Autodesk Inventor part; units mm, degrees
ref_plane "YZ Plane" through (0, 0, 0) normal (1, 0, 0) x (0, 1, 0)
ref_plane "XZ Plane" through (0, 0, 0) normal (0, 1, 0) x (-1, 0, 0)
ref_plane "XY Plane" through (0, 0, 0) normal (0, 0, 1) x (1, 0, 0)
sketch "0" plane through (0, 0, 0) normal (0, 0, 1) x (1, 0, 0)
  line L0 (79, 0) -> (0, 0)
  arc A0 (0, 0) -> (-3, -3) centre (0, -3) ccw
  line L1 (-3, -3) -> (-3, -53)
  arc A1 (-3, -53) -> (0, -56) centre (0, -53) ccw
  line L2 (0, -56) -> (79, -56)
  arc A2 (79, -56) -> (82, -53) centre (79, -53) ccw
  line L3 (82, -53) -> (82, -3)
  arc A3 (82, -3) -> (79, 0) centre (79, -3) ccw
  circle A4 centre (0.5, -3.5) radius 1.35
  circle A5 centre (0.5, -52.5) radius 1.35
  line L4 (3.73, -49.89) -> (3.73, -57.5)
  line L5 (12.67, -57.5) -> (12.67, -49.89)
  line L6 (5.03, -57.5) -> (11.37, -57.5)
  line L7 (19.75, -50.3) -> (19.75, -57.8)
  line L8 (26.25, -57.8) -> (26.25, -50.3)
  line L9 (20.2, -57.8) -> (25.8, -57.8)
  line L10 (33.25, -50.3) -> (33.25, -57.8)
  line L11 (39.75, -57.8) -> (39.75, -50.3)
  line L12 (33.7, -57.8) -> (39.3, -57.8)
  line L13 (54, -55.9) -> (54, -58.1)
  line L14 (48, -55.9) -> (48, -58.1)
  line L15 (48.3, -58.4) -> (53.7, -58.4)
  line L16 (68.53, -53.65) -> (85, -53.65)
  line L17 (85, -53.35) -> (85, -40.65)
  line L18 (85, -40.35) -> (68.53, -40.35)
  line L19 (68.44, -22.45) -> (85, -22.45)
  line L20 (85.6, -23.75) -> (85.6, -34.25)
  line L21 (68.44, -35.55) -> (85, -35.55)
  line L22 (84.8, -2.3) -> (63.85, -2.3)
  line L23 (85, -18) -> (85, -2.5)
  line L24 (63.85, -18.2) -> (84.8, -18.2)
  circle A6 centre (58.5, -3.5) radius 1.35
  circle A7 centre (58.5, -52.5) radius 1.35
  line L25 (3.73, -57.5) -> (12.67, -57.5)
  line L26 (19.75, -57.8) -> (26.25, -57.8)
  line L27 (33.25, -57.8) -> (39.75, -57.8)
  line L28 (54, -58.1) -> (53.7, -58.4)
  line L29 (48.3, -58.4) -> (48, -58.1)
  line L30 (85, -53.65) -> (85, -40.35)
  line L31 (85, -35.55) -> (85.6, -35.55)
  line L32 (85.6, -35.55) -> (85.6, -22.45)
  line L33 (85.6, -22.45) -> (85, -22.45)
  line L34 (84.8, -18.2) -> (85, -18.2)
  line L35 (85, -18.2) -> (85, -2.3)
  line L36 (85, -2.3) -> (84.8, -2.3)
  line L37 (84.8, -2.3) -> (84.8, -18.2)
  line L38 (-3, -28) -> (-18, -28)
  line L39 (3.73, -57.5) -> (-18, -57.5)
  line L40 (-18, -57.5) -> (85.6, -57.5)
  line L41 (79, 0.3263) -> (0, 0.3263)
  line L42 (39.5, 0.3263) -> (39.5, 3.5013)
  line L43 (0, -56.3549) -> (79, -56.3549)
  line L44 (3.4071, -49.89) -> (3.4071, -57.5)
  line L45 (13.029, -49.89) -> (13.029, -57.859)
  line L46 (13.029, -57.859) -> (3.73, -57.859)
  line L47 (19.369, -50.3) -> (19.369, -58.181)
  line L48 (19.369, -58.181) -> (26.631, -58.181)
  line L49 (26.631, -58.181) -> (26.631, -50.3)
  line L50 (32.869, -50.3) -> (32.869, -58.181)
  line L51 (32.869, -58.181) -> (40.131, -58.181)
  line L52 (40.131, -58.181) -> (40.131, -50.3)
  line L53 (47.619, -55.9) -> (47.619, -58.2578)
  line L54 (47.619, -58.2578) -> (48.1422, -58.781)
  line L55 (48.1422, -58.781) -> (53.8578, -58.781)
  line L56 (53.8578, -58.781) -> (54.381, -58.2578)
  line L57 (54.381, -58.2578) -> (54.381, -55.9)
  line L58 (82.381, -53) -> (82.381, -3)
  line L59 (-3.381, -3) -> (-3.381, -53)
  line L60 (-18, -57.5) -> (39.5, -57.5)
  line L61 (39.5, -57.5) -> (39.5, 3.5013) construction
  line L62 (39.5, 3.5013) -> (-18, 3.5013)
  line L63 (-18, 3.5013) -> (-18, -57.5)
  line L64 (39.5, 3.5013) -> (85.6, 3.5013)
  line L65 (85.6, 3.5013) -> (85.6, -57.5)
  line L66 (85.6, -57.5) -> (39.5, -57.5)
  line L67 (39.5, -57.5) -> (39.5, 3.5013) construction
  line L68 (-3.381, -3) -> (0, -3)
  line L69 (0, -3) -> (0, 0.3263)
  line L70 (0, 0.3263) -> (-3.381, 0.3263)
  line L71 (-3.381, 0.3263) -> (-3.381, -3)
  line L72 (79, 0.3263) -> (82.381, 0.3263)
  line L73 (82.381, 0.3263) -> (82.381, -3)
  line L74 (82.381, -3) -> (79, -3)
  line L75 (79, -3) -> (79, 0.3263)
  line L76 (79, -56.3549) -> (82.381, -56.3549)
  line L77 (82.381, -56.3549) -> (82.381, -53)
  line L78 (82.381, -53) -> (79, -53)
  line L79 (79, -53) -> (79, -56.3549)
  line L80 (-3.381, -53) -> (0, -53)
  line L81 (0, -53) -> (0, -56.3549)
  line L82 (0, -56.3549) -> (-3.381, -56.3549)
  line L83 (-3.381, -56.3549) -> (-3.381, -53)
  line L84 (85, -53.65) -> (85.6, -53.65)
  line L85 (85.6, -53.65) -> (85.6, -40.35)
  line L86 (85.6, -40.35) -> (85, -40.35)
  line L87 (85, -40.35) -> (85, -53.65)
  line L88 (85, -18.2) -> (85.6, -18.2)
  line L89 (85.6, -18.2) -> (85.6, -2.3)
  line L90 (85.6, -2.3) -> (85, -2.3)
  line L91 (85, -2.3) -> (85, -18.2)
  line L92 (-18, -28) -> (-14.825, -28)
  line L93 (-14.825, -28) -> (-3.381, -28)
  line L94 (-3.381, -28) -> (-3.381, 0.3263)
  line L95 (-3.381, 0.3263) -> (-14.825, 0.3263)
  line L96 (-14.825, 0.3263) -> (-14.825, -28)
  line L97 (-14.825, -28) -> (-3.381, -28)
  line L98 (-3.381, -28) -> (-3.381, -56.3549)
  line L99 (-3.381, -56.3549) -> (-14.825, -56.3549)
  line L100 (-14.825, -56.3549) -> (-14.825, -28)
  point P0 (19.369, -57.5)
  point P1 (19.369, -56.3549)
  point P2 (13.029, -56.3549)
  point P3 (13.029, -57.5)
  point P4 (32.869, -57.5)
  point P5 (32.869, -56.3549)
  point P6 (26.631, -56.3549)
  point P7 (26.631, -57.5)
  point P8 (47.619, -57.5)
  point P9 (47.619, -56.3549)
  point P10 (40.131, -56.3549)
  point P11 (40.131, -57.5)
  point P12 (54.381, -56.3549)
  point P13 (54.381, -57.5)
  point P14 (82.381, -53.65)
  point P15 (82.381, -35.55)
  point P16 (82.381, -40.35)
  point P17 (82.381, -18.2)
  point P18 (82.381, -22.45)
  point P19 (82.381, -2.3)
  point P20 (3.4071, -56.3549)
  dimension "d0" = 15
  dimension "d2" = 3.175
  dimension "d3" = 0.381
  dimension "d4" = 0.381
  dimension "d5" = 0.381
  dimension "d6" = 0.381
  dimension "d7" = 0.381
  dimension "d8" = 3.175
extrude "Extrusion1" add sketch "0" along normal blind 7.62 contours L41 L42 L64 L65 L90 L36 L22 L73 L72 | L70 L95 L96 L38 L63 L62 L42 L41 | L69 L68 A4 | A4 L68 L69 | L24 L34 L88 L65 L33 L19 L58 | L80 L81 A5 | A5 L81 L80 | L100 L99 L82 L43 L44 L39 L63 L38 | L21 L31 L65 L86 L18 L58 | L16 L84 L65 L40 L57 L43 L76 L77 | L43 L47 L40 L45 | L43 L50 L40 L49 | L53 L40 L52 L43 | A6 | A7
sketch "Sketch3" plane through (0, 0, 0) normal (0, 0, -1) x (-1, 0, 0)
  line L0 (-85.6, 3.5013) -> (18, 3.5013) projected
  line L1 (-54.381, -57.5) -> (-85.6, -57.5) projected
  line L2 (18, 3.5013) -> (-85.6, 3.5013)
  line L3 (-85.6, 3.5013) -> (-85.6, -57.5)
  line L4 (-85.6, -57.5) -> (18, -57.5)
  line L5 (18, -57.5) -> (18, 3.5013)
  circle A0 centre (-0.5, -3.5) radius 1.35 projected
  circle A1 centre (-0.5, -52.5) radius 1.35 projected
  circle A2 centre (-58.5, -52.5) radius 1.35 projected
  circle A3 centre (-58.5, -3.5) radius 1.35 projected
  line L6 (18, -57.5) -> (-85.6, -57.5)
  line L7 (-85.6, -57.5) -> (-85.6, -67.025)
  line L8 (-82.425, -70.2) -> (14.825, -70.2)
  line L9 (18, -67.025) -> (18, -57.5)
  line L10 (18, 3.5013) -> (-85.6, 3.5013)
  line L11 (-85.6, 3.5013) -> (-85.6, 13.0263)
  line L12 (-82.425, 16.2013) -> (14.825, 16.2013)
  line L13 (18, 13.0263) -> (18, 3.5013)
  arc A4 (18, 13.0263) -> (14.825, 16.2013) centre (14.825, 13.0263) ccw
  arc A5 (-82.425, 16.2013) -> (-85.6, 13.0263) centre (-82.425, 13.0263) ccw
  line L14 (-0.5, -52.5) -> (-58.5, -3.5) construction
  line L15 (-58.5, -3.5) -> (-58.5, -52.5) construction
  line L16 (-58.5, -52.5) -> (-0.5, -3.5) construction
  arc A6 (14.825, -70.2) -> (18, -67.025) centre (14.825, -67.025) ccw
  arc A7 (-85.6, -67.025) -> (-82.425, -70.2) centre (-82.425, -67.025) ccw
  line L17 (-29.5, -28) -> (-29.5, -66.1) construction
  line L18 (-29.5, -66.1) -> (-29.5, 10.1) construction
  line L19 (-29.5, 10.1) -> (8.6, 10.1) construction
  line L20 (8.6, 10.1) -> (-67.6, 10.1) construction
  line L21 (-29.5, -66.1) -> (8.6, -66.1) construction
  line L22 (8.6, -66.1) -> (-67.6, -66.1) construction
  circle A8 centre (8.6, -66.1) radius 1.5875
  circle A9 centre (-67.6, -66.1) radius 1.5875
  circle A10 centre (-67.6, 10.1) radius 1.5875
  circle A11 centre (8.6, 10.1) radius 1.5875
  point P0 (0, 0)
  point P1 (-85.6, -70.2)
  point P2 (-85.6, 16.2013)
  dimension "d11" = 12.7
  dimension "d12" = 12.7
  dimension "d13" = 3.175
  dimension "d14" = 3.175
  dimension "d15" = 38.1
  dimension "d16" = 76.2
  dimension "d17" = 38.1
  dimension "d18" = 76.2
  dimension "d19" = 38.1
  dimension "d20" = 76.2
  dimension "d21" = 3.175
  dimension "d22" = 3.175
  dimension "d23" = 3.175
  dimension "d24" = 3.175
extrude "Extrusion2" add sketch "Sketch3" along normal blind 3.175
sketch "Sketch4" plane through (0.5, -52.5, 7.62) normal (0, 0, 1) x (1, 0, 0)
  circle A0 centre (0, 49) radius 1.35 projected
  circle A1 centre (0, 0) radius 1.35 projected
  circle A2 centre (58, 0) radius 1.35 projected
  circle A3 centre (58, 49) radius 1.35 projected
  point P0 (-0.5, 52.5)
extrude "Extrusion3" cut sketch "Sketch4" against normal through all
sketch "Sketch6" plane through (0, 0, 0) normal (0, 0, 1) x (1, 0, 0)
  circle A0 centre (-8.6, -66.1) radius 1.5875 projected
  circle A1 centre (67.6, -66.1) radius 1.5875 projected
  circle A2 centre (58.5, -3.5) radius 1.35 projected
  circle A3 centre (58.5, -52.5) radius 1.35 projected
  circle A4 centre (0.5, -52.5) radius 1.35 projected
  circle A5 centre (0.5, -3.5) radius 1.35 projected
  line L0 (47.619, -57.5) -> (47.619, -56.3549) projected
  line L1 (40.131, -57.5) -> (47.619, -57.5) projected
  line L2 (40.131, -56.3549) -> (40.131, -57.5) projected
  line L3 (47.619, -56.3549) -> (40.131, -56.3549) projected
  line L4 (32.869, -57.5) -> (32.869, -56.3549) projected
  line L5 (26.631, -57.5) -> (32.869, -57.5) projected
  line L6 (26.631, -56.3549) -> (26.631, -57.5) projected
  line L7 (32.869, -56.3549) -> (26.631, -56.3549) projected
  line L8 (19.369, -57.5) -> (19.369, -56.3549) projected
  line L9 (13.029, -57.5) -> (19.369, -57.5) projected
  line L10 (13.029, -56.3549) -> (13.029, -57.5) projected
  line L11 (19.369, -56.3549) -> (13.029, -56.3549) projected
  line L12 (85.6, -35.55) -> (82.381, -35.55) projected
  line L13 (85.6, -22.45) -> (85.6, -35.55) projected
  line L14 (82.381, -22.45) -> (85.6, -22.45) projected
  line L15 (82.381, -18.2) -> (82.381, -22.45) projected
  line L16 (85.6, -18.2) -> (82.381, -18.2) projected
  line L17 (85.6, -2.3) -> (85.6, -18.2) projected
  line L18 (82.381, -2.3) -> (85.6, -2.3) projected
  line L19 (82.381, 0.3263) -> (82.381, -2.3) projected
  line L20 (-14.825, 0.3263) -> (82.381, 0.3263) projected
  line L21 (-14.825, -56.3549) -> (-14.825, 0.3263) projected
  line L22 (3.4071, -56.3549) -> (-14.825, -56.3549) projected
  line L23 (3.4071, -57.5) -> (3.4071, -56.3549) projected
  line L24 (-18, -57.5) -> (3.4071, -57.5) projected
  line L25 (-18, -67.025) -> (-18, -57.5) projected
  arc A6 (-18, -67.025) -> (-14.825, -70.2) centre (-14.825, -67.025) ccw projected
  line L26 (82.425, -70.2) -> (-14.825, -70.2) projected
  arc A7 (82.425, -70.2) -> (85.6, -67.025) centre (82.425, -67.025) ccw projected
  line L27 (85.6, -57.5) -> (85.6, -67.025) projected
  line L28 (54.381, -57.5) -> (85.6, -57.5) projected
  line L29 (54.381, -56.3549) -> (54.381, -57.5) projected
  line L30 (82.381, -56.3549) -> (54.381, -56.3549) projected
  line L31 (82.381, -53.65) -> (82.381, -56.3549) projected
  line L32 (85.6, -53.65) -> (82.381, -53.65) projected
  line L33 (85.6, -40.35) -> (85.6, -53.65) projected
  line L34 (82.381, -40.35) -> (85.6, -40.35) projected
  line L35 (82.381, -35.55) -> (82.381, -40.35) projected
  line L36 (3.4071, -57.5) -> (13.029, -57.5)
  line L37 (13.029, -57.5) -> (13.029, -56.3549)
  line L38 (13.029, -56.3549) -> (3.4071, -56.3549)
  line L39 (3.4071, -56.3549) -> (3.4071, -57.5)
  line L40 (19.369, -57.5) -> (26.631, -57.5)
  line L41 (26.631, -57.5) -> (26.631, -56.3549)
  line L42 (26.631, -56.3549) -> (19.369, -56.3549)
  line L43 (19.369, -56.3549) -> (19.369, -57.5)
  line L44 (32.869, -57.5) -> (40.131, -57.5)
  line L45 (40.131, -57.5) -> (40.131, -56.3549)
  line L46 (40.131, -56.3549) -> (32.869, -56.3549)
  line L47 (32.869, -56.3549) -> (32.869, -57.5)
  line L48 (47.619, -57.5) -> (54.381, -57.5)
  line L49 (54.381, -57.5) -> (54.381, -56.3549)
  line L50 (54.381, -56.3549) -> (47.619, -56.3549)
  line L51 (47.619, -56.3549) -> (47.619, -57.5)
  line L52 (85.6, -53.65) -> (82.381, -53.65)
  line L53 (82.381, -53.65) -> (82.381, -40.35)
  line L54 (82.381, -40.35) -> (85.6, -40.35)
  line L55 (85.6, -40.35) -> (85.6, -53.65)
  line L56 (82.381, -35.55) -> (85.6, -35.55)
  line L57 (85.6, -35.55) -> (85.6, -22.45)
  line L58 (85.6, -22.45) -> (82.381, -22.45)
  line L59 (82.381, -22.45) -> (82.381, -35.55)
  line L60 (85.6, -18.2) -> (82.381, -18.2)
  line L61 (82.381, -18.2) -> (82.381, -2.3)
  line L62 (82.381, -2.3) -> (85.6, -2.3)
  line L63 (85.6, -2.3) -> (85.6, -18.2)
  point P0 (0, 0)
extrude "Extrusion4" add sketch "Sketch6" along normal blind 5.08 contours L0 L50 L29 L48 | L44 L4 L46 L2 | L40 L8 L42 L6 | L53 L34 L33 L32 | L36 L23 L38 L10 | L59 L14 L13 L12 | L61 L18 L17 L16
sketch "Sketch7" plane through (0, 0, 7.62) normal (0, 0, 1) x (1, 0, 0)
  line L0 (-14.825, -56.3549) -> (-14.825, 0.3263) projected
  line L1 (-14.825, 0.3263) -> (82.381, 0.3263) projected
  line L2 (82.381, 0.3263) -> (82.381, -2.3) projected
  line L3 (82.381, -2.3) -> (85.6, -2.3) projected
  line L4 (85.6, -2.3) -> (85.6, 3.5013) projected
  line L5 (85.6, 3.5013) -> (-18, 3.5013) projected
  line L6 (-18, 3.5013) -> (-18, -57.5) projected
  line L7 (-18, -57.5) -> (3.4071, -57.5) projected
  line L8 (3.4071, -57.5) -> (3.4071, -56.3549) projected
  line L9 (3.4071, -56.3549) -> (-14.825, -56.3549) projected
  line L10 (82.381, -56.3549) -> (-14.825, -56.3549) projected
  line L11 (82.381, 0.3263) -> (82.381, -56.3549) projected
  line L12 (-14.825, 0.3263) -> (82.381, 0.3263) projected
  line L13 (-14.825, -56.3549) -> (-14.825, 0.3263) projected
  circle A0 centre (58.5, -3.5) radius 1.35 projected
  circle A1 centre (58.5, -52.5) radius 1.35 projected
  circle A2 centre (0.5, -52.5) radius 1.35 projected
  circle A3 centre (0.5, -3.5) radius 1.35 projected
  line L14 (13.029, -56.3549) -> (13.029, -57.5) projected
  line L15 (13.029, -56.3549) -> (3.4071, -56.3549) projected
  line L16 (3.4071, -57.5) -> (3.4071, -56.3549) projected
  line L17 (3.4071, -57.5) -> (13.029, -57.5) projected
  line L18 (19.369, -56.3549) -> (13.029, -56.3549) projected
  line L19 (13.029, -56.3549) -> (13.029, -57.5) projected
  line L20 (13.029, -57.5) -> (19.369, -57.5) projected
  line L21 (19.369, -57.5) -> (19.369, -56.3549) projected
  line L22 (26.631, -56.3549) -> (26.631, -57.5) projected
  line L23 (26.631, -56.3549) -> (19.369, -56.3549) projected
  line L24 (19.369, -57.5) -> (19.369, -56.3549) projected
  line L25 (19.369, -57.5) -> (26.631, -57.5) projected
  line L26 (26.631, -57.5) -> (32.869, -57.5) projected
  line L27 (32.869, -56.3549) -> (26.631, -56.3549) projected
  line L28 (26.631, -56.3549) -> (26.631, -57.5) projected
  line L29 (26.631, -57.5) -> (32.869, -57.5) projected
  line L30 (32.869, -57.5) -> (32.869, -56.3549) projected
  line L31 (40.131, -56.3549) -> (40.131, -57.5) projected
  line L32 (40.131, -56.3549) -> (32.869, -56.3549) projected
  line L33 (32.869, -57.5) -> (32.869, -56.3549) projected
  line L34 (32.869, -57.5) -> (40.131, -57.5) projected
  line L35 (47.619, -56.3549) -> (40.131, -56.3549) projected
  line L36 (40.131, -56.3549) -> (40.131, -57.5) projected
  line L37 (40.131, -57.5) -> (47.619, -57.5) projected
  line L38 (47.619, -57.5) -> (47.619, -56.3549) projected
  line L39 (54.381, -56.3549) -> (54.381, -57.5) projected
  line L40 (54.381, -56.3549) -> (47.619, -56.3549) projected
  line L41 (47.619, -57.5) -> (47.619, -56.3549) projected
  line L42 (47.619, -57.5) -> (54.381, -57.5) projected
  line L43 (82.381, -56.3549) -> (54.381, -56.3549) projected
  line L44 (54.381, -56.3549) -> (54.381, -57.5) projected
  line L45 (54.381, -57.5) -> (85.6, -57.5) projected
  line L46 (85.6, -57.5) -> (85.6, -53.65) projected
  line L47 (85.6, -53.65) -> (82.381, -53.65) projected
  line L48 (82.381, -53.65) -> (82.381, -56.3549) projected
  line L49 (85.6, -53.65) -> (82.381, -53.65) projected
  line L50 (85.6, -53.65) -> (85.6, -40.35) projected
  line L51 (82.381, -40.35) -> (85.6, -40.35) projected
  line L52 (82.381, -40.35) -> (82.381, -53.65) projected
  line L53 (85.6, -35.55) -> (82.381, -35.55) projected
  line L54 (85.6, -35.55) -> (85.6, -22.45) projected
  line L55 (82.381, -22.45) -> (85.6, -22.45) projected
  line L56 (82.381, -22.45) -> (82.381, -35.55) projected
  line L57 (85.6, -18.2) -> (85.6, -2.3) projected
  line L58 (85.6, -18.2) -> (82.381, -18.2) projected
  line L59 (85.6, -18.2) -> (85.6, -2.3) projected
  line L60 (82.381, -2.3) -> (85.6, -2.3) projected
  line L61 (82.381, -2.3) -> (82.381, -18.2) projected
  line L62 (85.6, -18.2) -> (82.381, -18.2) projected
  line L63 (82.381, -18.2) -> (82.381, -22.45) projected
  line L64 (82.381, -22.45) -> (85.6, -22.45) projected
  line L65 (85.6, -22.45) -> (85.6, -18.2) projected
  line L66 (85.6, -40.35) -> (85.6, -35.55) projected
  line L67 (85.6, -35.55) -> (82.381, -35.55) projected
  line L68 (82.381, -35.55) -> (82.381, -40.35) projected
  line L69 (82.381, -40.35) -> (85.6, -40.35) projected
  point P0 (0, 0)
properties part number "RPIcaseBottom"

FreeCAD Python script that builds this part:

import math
import FreeCAD as App
import Part
import Sketcher


def add_polygon(sketch, points):
    """Adds a closed chain of lines whose ends are joined by coincident constraints."""
    first, n = sketch.GeometryCount, len(points)
    for a, b in zip(points, points[1:] + points[:1]):
        sketch.addGeometry(Part.LineSegment(App.Vector(*a, 0), App.Vector(*b, 0)), False)
    for i in range(n):
        sketch.addConstraint(Sketcher.Constraint("Coincident", first + i, 2, first + (i + 1) % n, 1))

doc = App.newDocument("Part")
params = doc.addObject("Spreadsheet::Sheet", "Params")
for row, (alias, value) in enumerate([
    ("sketch1_diameter", "2.7 mm"),
    ("sketch1_width", "28 mm"),
    ("sketch1_width2", "103.6 mm"),
    ("sketch1_height", "4.8 mm"),
    ("sketch1_width3", "6.34 mm"),
    ("pad1_length", "7.62 mm"),
    ("sketch2_diameter", "2.7 mm"),
    ("sketch2_width", "97.25 mm"),
    ("pad2_length", "3.175 mm"),
    ("sketch3_diameter", "2.7 mm"),
    ("sketch4_height", "13.3 mm"),
    ("sketch4_height2", "13.1 mm"),
    ("sketch4_height3", "15.9 mm"),
    ("pad3_length", "5.08 mm"),
], start=1):
    params.set(f"A{row}", alias)
    params.set(f"B{row}", "=" + value)
    params.setAlias(f"B{row}", alias)

body = doc.addObject("PartDesign::Body", "Body")
body.AllowCompound = True

# Sketch on XY plane
sketch1 = body.newObject("Sketcher::SketchObject", "Sketch")
sketch1.AttachmentSupport = (doc.getObject("XY_Plane"), [""])
sketch1.MapMode = "FlatFace"
add_polygon(sketch1, [(82.4, 0.3), (82.4, -2.3), (85.6, -2.3), (85.6, 3.5), (-18, 3.5), (-18, -57.5), (3.4, -57.5), (3.4, -56.4), (-14.8, -56.4), (-14.8, 0.3)])  # lines 0-9
sketch1.addGeometry(Part.Circle(App.Vector(0.5, -3.5, 0), App.Vector(0, 0, 1), 1.4), False)  # 10
add_polygon(sketch1, [(85.6, -18.2), (82.4, -18.2), (82.4, -22.4), (85.6, -22.4)])  # lines 11-14
sketch1.addGeometry(Part.Circle(App.Vector(0.5, -52.5, 0), App.Vector(0, 0, 1), 1.4), False)  # 15
add_polygon(sketch1, [(85.6, -35.5), (82.4, -35.5), (82.4, -40.4), (85.6, -40.4)])  # lines 16-19
add_polygon(sketch1, [(85.6, -53.6), (82.4, -53.6), (82.4, -56.4), (54.4, -56.4), (54.4, -57.5), (85.6, -57.5)])  # lines 20-25
add_polygon(sketch1, [(19.4, -56.4), (13, -56.4), (13, -57.5), (19.4, -57.5)])  # lines 26-29
add_polygon(sketch1, [(32.9, -56.4), (26.6, -56.4), (26.6, -57.5), (32.9, -57.5)])  # lines 30-33
add_polygon(sketch1, [(47.6, -57.5), (47.6, -56.4), (40.1, -56.4), (40.1, -57.5)])  # lines 34-37
sketch1.addGeometry(Part.Circle(App.Vector(58.5, -3.5, 0), App.Vector(0, 0, 1), 1.4), False)  # 38
sketch1.addGeometry(Part.Circle(App.Vector(58.5, -52.5, 0), App.Vector(0, 0, 1), 1.4), False)  # 39
sketch1.addConstraint(Sketcher.Constraint("Vertical", 0))
sketch1.addConstraint(Sketcher.Constraint("Horizontal", 1))
sketch1.addConstraint(Sketcher.Constraint("Vertical", 2))
sketch1.addConstraint(Sketcher.Constraint("Horizontal", 3))
sketch1.addConstraint(Sketcher.Constraint("Vertical", 4))
sketch1.addConstraint(Sketcher.Constraint("Horizontal", 5))
sketch1.addConstraint(Sketcher.Constraint("Vertical", 6))
sketch1.addConstraint(Sketcher.Constraint("Horizontal", 7))
sketch1.addConstraint(Sketcher.Constraint("Vertical", 8))
sketch1.addConstraint(Sketcher.Constraint("Horizontal", 9))
sketch1.addConstraint(Sketcher.Constraint("Horizontal", 11))
sketch1.addConstraint(Sketcher.Constraint("Vertical", 12))
sketch1.addConstraint(Sketcher.Constraint("Horizontal", 13))
sketch1.addConstraint(Sketcher.Constraint("Vertical", 14))
sketch1.addConstraint(Sketcher.Constraint("Horizontal", 16))
sketch1.addConstraint(Sketcher.Constraint("Vertical", 17))
sketch1.addConstraint(Sketcher.Constraint("Horizontal", 18))
sketch1.addConstraint(Sketcher.Constraint("Vertical", 19))
sketch1.addConstraint(Sketcher.Constraint("Horizontal", 20))
sketch1.addConstraint(Sketcher.Constraint("Vertical", 21))
sketch1.addConstraint(Sketcher.Constraint("Horizontal", 22))
sketch1.addConstraint(Sketcher.Constraint("Vertical", 23))
sketch1.addConstraint(Sketcher.Constraint("Horizontal", 24))
sketch1.addConstraint(Sketcher.Constraint("Vertical", 25))
sketch1.addConstraint(Sketcher.Constraint("Horizontal", 26))
sketch1.addConstraint(Sketcher.Constraint("Vertical", 27))
sketch1.addConstraint(Sketcher.Constraint("Horizontal", 28))
sketch1.addConstraint(Sketcher.Constraint("Vertical", 29))
sketch1.addConstraint(Sketcher.Constraint("Horizontal", 30))
sketch1.addConstraint(Sketcher.Constraint("Vertical", 31))
sketch1.addConstraint(Sketcher.Constraint("Horizontal", 32))
sketch1.addConstraint(Sketcher.Constraint("Vertical", 33))
sketch1.addConstraint(Sketcher.Constraint("Vertical", 34))
sketch1.addConstraint(Sketcher.Constraint("Horizontal", 35))
sketch1.addConstraint(Sketcher.Constraint("Vertical", 36))
sketch1.addConstraint(Sketcher.Constraint("Horizontal", 37))
sketch1.addConstraint(Sketcher.Constraint("Equal", 10, 15))
sketch1.addConstraint(Sketcher.Constraint("Equal", 15, 38))
sketch1.addConstraint(Sketcher.Constraint("Equal", 38, 39))
sketch1.addConstraint(Sketcher.Constraint("Horizontal", 10, 3, 38, 3))
sketch1.addConstraint(Sketcher.Constraint("Horizontal", 15, 3, 39, 3))
sketch1.addConstraint(Sketcher.Constraint("Horizontal", 7, 2, 21, 2))
sketch1.addConstraint(Sketcher.Constraint("Horizontal", 5, 2, 23, 2))
sketch1.addConstraint(Sketcher.Constraint("Horizontal", 22, 2, 26, 2))
sketch1.addConstraint(Sketcher.Constraint("Horizontal", 24, 2, 27, 2))
sketch1.addConstraint(Sketcher.Constraint("Horizontal", 29, 2, 30, 2))
sketch1.addConstraint(Sketcher.Constraint("Horizontal", 28, 2, 31, 2))
sketch1.addConstraint(Sketcher.Constraint("Horizontal", 33, 2, 34, 2))
sketch1.addConstraint(Sketcher.Constraint("Horizontal", 32, 2, 36, 2))
sketch1.addConstraint(Sketcher.Constraint("Vertical", 10, 3, 15, 3))
sketch1.addConstraint(Sketcher.Constraint("Vertical", 38, 3, 39, 3))
sketch1.addConstraint(Sketcher.Constraint("Vertical", 9, 2, 11, 2))
sketch1.addConstraint(Sketcher.Constraint("Vertical", 2, 2, 13, 2))
sketch1.addConstraint(Sketcher.Constraint("Vertical", 12, 2, 16, 2))
sketch1.addConstraint(Sketcher.Constraint("Vertical", 14, 2, 18, 2))
sketch1.addConstraint(Sketcher.Constraint("Vertical", 17, 2, 20, 2))
sketch1.addConstraint(Sketcher.Constraint("Vertical", 19, 2, 24, 2))
sketch1.addConstraint(Sketcher.Constraint("Diameter", 10, 2.7))
sketch1.addConstraint(Sketcher.Constraint("DistanceX", 22, 2, 22, 1, 28.0))
sketch1.addConstraint(Sketcher.Constraint("DistanceX", 3, 2, 3, 1, 103.6))
sketch1.addConstraint(Sketcher.Constraint("DistanceY", 17, 2, 17, 1, 4.8))
sketch1.addConstraint(Sketcher.Constraint("DistanceX", 3, 2, -1, 1, 18.0))
sketch1.addConstraint(Sketcher.Constraint("DistanceY", 15, 3, 10, 3, 49.0))
sketch1.addConstraint(Sketcher.Constraint("DistanceX", 10, 3, 38, 3, 58.0))
sketch1.addConstraint(Sketcher.Constraint("DistanceY", 4, 2, 15, 3, 5.0))
sketch1.addConstraint(Sketcher.Constraint("DistanceX", 4, 2, 7, 2, 3.175))
sketch1.addConstraint(Sketcher.Constraint("DistanceY", 8, 2, 3, 2, 3.175))
sketch1.addConstraint(Sketcher.Constraint("DistanceX", 26, 2, 26, 1, 6.34))
sketch1.addConstraint(Sketcher.Constraint("DistanceY", 12, 2, 12, 1, 4.25))
sketch1.addConstraint(Sketcher.Constraint("DistanceY", 25, 1, 25, 2, 3.85))
sketch1.addConstraint(Sketcher.Constraint("DistanceX", -1, 1, 10, 3, 0.5))
sketch1.addConstraint(Sketcher.Constraint("DistanceY", 10, 3, -1, 1, 3.5))
sketch1.addConstraint(Sketcher.Constraint("DistanceY", 0, 2, -1, 1, 2.3))
sketch1.addConstraint(Sketcher.Constraint("DistanceY", 11, 2, -1, 1, 18.2))
sketch1.addConstraint(Sketcher.Constraint("DistanceY", 16, 2, 12, 2, 13.1))
sketch1.addConstraint(Sketcher.Constraint("DistanceX", 28, 2, 32, 2, 13.5))
sketch1.addConstraint(Sketcher.Constraint("DistanceX", 30, 2, 35, 2, 13.5))
sketch1.addConstraint(Sketcher.Constraint("DistanceX", 1, 1, 1, 2, 3.219))
sketch1.addConstraint(Sketcher.Constraint("DistanceX", 5, 1, 5, 2, 21.407))
sketch1.addConstraint(Sketcher.Constraint("DistanceX", 30, 2, 30, 1, 6.238))
sketch1.addConstraint(Sketcher.Constraint("DistanceX", 35, 2, 35, 1, 7.488))
sketch1.addConstraint(Sketcher.Constraint("DistanceY", 6, 1, 6, 2, 1.145))
sketch1.addConstraint(Sketcher.Constraint("DistanceY", 0, 2, 0, 1, 2.6263))
sketch1.addConstraint(Sketcher.Constraint("DistanceX", -1, 1, 26, 2, 13.029))
sketch1.setExpression("Constraints[93]", "Params.sketch1_diameter")
sketch1.setExpression("Constraints[94]", "Params.sketch1_width")
sketch1.setExpression("Constraints[95]", "Params.sketch1_width2")
sketch1.setExpression("Constraints[96]", "Params.sketch1_height")
sketch1.setExpression("Constraints[103]", "Params.sketch1_width3")
pad1 = body.newObject("PartDesign::Pad", "Pad")
pad1.Profile = sketch1
pad1.setExpression("Length", "Params.pad1_length")

# Sketch on XY plane
sketch2 = body.newObject("Sketcher::SketchObject", "Sketch001")
sketch2.AttachmentSupport = (doc.getObject("XY_Plane"), [""])
sketch2.MapMode = "FlatFace"
sketch2.addGeometry(Part.LineSegment(App.Vector(85.6, 13, 0), App.Vector(85.6, -67, 0)), False)
sketch2.addGeometry(Part.ArcOfCircle(Part.Circle(App.Vector(82.4, -67, 0), App.Vector(0, 0, 1), 3.2), math.radians(-90), math.radians(0)), False)
sketch2.addGeometry(Part.LineSegment(App.Vector(82.4, -70.2, 0), App.Vector(-14.8, -70.2, 0)), False)
sketch2.addGeometry(Part.ArcOfCircle(Part.Circle(App.Vector(-14.8, -67, 0), App.Vector(0, 0, 1), 3.2), math.radians(180), math.radians(270)), False)
sketch2.addGeometry(Part.LineSegment(App.Vector(-18, -67, 0), App.Vector(-18, 13, 0)), False)
sketch2.addGeometry(Part.ArcOfCircle(Part.Circle(App.Vector(-14.8, 13, 0), App.Vector(0, 0, 1), 3.2), math.radians(90), math.radians(180)), False)
sketch2.addGeometry(Part.LineSegment(App.Vector(-14.8, 16.2, 0), App.Vector(82.4, 16.2, 0)), False)
sketch2.addGeometry(Part.ArcOfCircle(Part.Circle(App.Vector(82.4, 13, 0), App.Vector(0, 0, 1), 3.2), math.radians(0), math.radians(90)), False)
sketch2.addGeometry(Part.Circle(App.Vector(67.6, 10.1, 0), App.Vector(0, 0, 1), 1.6), False)
sketch2.addGeometry(Part.Circle(App.Vector(-8.6, 10.1, 0), App.Vector(0, 0, 1), 1.6), False)
sketch2.addGeometry(Part.Circle(App.Vector(0.5, -3.5, 0), App.Vector(0, 0, 1), 1.4), False)
sketch2.addGeometry(Part.Circle(App.Vector(58.5, -52.5, 0), App.Vector(0, 0, 1), 1.4), False)
sketch2.addGeometry(Part.Circle(App.Vector(0.5, -52.5, 0), App.Vector(0, 0, 1), 1.4), False)
sketch2.addGeometry(Part.Circle(App.Vector(58.5, -3.5, 0), App.Vector(0, 0, 1), 1.4), False)
sketch2.addGeometry(Part.Circle(App.Vector(67.6, -66.1, 0), App.Vector(0, 0, 1), 1.6), False)
sketch2.addGeometry(Part.Circle(App.Vector(-8.6, -66.1, 0), App.Vector(0, 0, 1), 1.6), False)
sketch2.addConstraint(Sketcher.Constraint("Tangent", 0, 2, 1, 2))
sketch2.addConstraint(Sketcher.Constraint("Tangent", 1, 1, 2, 1))
sketch2.addConstraint(Sketcher.Constraint("Tangent", 2, 2, 3, 2))
sketch2.addConstraint(Sketcher.Constraint("Tangent", 3, 1, 4, 1))
sketch2.addConstraint(Sketcher.Constraint("Tangent", 4, 2, 5, 2))
sketch2.addConstraint(Sketcher.Constraint("Tangent", 5, 1, 6, 1))
sketch2.addConstraint(Sketcher.Constraint("Tangent", 6, 2, 7, 2))
sketch2.addConstraint(Sketcher.Constraint("Tangent", 7, 1, 0, 1))
sketch2.addConstraint(Sketcher.Constraint("Vertical", 0))
sketch2.addConstraint(Sketcher.Constraint("Horizontal", 2))
sketch2.addConstraint(Sketcher.Constraint("Vertical", 4))
sketch2.addConstraint(Sketcher.Constraint("Horizontal", 6))
sketch2.addConstraint(Sketcher.Constraint("Equal", 1, 3))
sketch2.addConstraint(Sketcher.Constraint("Equal", 3, 5))
sketch2.addConstraint(Sketcher.Constraint("Equal", 5, 7))
sketch2.addConstraint(Sketcher.Constraint("Equal", 8, 9))
sketch2.addConstraint(Sketcher.Constraint("Equal", 10, 11))
sketch2.addConstraint(Sketcher.Constraint("Equal", 11, 12))
sketch2.addConstraint(Sketcher.Constraint("Equal", 12, 13))
sketch2.addConstraint(Sketcher.Constraint("Equal", 9, 14))
sketch2.addConstraint(Sketcher.Constraint("Equal", 14, 15))
sketch2.addConstraint(Sketcher.Constraint("Horizontal", 8, 3, 9, 3))
sketch2.addConstraint(Sketcher.Constraint("Horizontal", 11, 3, 12, 3))
sketch2.addConstraint(Sketcher.Constraint("Horizontal", 10, 3, 13, 3))
sketch2.addConstraint(Sketcher.Constraint("Horizontal", 14, 3, 15, 3))
sketch2.addConstraint(Sketcher.Constraint("Vertical", 10, 3, 12, 3))
sketch2.addConstraint(Sketcher.Constraint("Vertical", 11, 3, 13, 3))
sketch2.addConstraint(Sketcher.Constraint("Vertical", 8, 3, 14, 3))
sketch2.addConstraint(Sketcher.Constraint("Vertical", 9, 3, 15, 3))
sketch2.addConstraint(Sketcher.Constraint("Diameter", 8, 3.175))
sketch2.addConstraint(Sketcher.Constraint("Radius", 1, 3.175))
sketch2.addConstraint(Sketcher.Constraint("Diameter", 10, 2.7))
sketch2.addConstraint(Sketcher.Constraint("DistanceX", 9, 3, 8, 3, 76.2))
sketch2.addConstraint(Sketcher.Constraint("DistanceY", 14, 3, 8, 3, 76.2))
sketch2.addConstraint(Sketcher.Constraint("DistanceX", 3, 1, -1, 1, 18.0))
sketch2.addConstraint(Sketcher.Constraint("DistanceX", 10, 3, 11, 3, 58.0))
sketch2.addConstraint(Sketcher.Constraint("DistanceY", 11, 3, 10, 3, 49.0))
sketch2.addConstraint(Sketcher.Constraint("DistanceX", 14, 3, 0, 2, 18.0))
sketch2.addConstraint(Sketcher.Constraint("DistanceX", 2, 2, 2, 1, 97.25))
sketch2.addConstraint(Sketcher.Constraint("DistanceY", -1, 1, 8, 3, 10.1))
sketch2.addConstraint(Sketcher.Constraint("DistanceX", -1, 1, 10, 3, 0.5))
sketch2.addConstraint(Sketcher.Constraint("DistanceY", 10, 3, -1, 1, 3.5))
sketch2.addConstraint(Sketcher.Constraint("DistanceY", 1, 1, -1, 1, 70.2))
sketch2.addConstraint(Sketcher.Constraint("DistanceY", 0, 2, 0, 1, 80.0513))
sketch2.setExpression("Constraints[31]", "Params.sketch2_diameter")
sketch2.setExpression("Constraints[38]", "Params.sketch2_width")
pad2 = body.newObject("PartDesign::Pad", "Pad001")
pad2.Profile = sketch2
pad2.setExpression("Length", "Params.pad2_length")
pad2.Reversed = True

# Sketch on XY plane
sketch3 = body.newObject("Sketcher::SketchObject", "Sketch002")
sketch3.AttachmentSupport = (doc.getObject("XY_Plane"), [""])
sketch3.MapMode = "FlatFace"
sketch3.AttachmentOffset = App.Placement(App.Vector(0, 0, 7.62), App.Rotation())
sketch3.addGeometry(Part.Circle(App.Vector(0.5, -3.5, 0), App.Vector(0, 0, 1), 1.4), False)
sketch3.addGeometry(Part.Circle(App.Vector(0.5, -52.5, 0), App.Vector(0, 0, 1), 1.4), False)
sketch3.addGeometry(Part.Circle(App.Vector(58.5, -52.5, 0), App.Vector(0, 0, 1), 1.4), False)
sketch3.addGeometry(Part.Circle(App.Vector(58.5, -3.5, 0), App.Vector(0, 0, 1), 1.4), False)
sketch3.addConstraint(Sketcher.Constraint("Equal", 0, 1))
sketch3.addConstraint(Sketcher.Constraint("Equal", 1, 2))
sketch3.addConstraint(Sketcher.Constraint("Equal", 2, 3))
sketch3.addConstraint(Sketcher.Constraint("Horizontal", 1, 3, 2, 3))
sketch3.addConstraint(Sketcher.Constraint("Horizontal", 0, 3, 3, 3))
sketch3.addConstraint(Sketcher.Constraint("Vertical", 0, 3, 1, 3))
sketch3.addConstraint(Sketcher.Constraint("Vertical", 2, 3, 3, 3))
sketch3.addConstraint(Sketcher.Constraint("Diameter", 0, 2.7))
sketch3.addConstraint(Sketcher.Constraint("DistanceY", 1, 3, 0, 3, 49.0))
sketch3.addConstraint(Sketcher.Constraint("DistanceX", 1, 3, 2, 3, 58.0))
sketch3.addConstraint(Sketcher.Constraint("DistanceX", -1, 1, 0, 3, 0.5))
sketch3.addConstraint(Sketcher.Constraint("DistanceY", 0, 3, -1, 1, 3.5))
sketch3.setExpression("Constraints[7]", "Params.sketch3_diameter")
pocket1 = body.newObject("PartDesign::Pocket", "Pocket")
pocket1.Profile = sketch3
pocket1.Type = "ThroughAll"

# Sketch on XY plane
sketch4 = body.newObject("Sketcher::SketchObject", "Sketch003")
sketch4.AttachmentSupport = (doc.getObject("XY_Plane"), [""])
sketch4.MapMode = "FlatFace"
add_polygon(sketch4, [(47.6, -56.4), (47.6, -57.5), (54.4, -57.5), (54.4, -56.4)])  # lines 0-3
add_polygon(sketch4, [(32.9, -57.5), (40.1, -57.5), (40.1, -56.4), (32.9, -56.4)])  # lines 4-7
add_polygon(sketch4, [(19.4, -57.5), (26.6, -57.5), (26.6, -56.4), (19.4, -56.4)])  # lines 8-11
add_polygon(sketch4, [(82.4, -40.4), (82.4, -53.6), (85.6, -53.6), (85.6, -40.4)])  # lines 12-15
add_polygon(sketch4, [(3.4, -57.5), (13, -57.5), (13, -56.4), (3.4, -56.4)])  # lines 16-19
add_polygon(sketch4, [(82.4, -22.4), (82.4, -35.5), (85.6, -35.5), (85.6, -22.4)])  # lines 20-23
add_polygon(sketch4, [(82.4, -2.3), (82.4, -18.2), (85.6, -18.2), (85.6, -2.3)])  # lines 24-27
sketch4.addConstraint(Sketcher.Constraint("Vertical", 0))
sketch4.addConstraint(Sketcher.Constraint("Horizontal", 1))
sketch4.addConstraint(Sketcher.Constraint("Vertical", 2))
sketch4.addConstraint(Sketcher.Constraint("Horizontal", 3))
sketch4.addConstraint(Sketcher.Constraint("Horizontal", 4))
sketch4.addConstraint(Sketcher.Constraint("Vertical", 5))
sketch4.addConstraint(Sketcher.Constraint("Horizontal", 6))
sketch4.addConstraint(Sketcher.Constraint("Vertical", 7))
sketch4.addConstraint(Sketcher.Constraint("Horizontal", 8))
sketch4.addConstraint(Sketcher.Constraint("Vertical", 9))
sketch4.addConstraint(Sketcher.Constraint("Horizontal", 10))
sketch4.addConstraint(Sketcher.Constraint("Vertical", 11))
sketch4.addConstraint(Sketcher.Constraint("Vertical", 12))
sketch4.addConstraint(Sketcher.Constraint("Horizontal", 13))
sketch4.addConstraint(Sketcher.Constraint("Vertical", 14))
sketch4.addConstraint(Sketcher.Constraint("Horizontal", 15))
sketch4.addConstraint(Sketcher.Constraint("Horizontal", 16))
sketch4.addConstraint(Sketcher.Constraint("Vertical", 17))
sketch4.addConstraint(Sketcher.Constraint("Horizontal", 18))
sketch4.addConstraint(Sketcher.Constraint("Vertical", 19))
sketch4.addConstraint(Sketcher.Constraint("Vertical", 20))
sketch4.addConstraint(Sketcher.Constraint("Horizontal", 21))
sketch4.addConstraint(Sketcher.Constraint("Vertical", 22))
sketch4.addConstraint(Sketcher.Constraint("Horizontal", 23))
sketch4.addConstraint(Sketcher.Constraint("Vertical", 24))
sketch4.addConstraint(Sketcher.Constraint("Horizontal", 25))
sketch4.addConstraint(Sketcher.Constraint("Vertical", 26))
sketch4.addConstraint(Sketcher.Constraint("Horizontal", 27))
sketch4.addConstraint(Sketcher.Constraint("Horizontal", 1, 2, 4, 2))
sketch4.addConstraint(Sketcher.Constraint("Horizontal", 3, 2, 5, 2))
sketch4.addConstraint(Sketcher.Constraint("Horizontal", 7, 2, 8, 2))
sketch4.addConstraint(Sketcher.Constraint("Horizontal", 6, 2, 9, 2))
sketch4.addConstraint(Sketcher.Constraint("Horizontal", 11, 2, 16, 2))
sketch4.addConstraint(Sketcher.Constraint("Horizontal", 10, 2, 17, 2))
sketch4.addConstraint(Sketcher.Constraint("Vertical", 15, 2, 20, 2))
sketch4.addConstraint(Sketcher.Constraint("Vertical", 14, 2, 21, 2))
sketch4.addConstraint(Sketcher.Constraint("Vertical", 23, 2, 24, 2))
sketch4.addConstraint(Sketcher.Constraint("Vertical", 22, 2, 25, 2))
sketch4.addConstraint(Sketcher.Constraint("Equal", 6, 8))
sketch4.addConstraint(Sketcher.Constraint("DistanceY", 12, 2, 12, 1, 13.3))
sketch4.addConstraint(Sketcher.Constraint("DistanceY", 20, 2, 20, 1, 13.1))
sketch4.addConstraint(Sketcher.Constraint("DistanceY", 24, 2, 24, 1, 15.9))
sketch4.addConstraint(Sketcher.Constraint("DistanceX", 2, 2, 12, 2, 28.0))
sketch4.addConstraint(Sketcher.Constraint("DistanceY", 0, 2, -1, 1, 57.5))
sketch4.addConstraint(Sketcher.Constraint("DistanceX", -1, 1, 13, 2, 85.6))
sketch4.addConstraint(Sketcher.Constraint("DistanceY", 24, 2, -1, 1, 18.2))
sketch4.addConstraint(Sketcher.Constraint("DistanceX", 8, 2, 4, 2, 13.5))
sketch4.addConstraint(Sketcher.Constraint("DistanceY", 15, 2, 20, 2, 4.8))
sketch4.addConstraint(Sketcher.Constraint("DistanceX", 1, 1, 1, 2, 6.762))
sketch4.addConstraint(Sketcher.Constraint("DistanceX", 4, 1, 4, 2, 7.262))
sketch4.addConstraint(Sketcher.Constraint("DistanceX", 13, 1, 13, 2, 3.219))
sketch4.addConstraint(Sketcher.Constraint("DistanceX", 16, 1, 16, 2, 9.622))
sketch4.addConstraint(Sketcher.Constraint("DistanceY", 0, 2, 0, 1, 1.145))
sketch4.addConstraint(Sketcher.Constraint("DistanceY", 12, 2, -1, 1, 53.65))
sketch4.addConstraint(Sketcher.Constraint("DistanceX", 4, 2, 1, 2, 14.25))
sketch4.addConstraint(Sketcher.Constraint("DistanceX", 16, 2, 11, 2, 6.34))
sketch4.setExpression("Constraints[67]", "Params.sketch4_height")
sketch4.setExpression("Constraints[68]", "Params.sketch4_height2")
sketch4.setExpression("Constraints[69]", "Params.sketch4_height3")
pad3 = body.newObject("PartDesign::Pad", "Pad002")
pad3.Profile = sketch4
pad3.setExpression("Length", "Params.pad3_length")

doc.recompute()
